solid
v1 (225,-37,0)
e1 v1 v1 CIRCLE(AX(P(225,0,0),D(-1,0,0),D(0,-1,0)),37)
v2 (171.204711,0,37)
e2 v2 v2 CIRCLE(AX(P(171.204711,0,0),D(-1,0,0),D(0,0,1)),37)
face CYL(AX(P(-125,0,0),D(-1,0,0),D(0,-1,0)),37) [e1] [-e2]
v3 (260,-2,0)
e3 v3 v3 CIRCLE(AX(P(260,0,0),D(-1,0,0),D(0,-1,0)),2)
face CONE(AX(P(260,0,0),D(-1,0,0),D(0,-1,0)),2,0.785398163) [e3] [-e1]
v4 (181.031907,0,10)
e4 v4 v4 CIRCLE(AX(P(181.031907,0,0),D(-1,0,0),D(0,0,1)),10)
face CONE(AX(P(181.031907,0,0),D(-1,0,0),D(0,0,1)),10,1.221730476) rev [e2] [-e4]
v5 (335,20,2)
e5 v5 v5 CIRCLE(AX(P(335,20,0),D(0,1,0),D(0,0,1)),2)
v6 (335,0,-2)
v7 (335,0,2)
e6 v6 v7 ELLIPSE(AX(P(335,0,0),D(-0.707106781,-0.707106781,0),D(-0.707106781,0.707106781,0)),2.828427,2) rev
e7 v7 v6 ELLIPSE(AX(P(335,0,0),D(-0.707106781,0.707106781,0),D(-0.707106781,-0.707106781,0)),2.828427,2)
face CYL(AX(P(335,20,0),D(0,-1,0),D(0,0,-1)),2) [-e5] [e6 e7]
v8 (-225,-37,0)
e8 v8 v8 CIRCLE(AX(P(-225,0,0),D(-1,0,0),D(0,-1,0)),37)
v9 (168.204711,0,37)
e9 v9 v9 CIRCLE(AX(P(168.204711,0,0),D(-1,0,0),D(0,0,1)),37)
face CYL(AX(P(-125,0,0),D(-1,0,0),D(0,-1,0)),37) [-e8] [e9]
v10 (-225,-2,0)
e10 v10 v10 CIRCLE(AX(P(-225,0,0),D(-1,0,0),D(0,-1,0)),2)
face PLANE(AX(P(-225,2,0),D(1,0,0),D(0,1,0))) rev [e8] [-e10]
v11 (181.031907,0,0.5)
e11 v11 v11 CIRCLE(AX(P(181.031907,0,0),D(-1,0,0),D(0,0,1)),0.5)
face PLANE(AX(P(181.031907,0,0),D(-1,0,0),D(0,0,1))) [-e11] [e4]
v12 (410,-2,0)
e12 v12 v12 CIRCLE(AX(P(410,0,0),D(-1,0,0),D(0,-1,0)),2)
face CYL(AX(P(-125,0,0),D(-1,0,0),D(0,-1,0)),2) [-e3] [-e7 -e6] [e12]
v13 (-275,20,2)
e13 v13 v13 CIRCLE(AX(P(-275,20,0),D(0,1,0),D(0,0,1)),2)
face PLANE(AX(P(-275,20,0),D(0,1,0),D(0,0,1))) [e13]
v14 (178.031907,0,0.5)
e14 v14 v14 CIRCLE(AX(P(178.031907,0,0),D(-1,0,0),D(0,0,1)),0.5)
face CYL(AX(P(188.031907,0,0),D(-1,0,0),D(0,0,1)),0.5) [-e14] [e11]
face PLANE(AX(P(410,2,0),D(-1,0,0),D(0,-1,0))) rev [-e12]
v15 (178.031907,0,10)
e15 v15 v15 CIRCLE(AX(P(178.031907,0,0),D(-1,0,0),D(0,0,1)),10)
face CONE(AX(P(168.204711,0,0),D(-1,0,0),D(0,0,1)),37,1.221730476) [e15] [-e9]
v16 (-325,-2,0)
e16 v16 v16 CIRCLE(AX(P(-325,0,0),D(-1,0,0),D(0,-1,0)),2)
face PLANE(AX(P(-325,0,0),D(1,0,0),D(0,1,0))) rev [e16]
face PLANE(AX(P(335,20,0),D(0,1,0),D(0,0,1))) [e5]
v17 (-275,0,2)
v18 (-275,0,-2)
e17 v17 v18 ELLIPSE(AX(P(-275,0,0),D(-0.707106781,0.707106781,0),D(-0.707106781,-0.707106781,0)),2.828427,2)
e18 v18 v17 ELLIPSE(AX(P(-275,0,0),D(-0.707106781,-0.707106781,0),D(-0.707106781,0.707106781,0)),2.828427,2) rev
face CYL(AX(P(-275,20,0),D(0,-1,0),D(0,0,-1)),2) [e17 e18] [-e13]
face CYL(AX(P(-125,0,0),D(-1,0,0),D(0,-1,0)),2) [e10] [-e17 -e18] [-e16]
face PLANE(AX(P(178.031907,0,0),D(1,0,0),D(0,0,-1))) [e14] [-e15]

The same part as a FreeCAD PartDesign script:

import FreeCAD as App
import Part
import Sketcher

V = App.Vector
Q = App.Units.Quantity

doc = App.newDocument("Part")
body = doc.addObject("PartDesign::Body", "Body")

sketch1 = body.newObject("Sketcher::SketchObject", "Sketch")
sketch1.AttachmentSupport = (doc.getObject("XY_Plane"), [""])
sketch1.MapMode = "FlatFace"
sketch1.addGeometry([
    Part.LineSegment(V(-225, 37, 0), V(-225, 2, 0)),
    Part.LineSegment(V(-225, 2, 0), V(-325, 2, 0)),
    Part.LineSegment(V(-325, 2, 0), V(-325, 0, 0)),
    Part.LineSegment(V(-325, 0, 0), V(410, 0, 0)),
    Part.LineSegment(V(410, 0, 0), V(410, 2, 0)),
    Part.LineSegment(V(410, 2, 0), V(260, 2, 0)),
    Part.LineSegment(V(260, 2, 0), V(225, 37, 0)),
    Part.LineSegment(V(225, 37, 0), V(-225, 37, 0)),
], False)
sketch1.addConstraint([
    Sketcher.Constraint("Coincident", 0, 2, 1, 1),
    Sketcher.Constraint("Coincident", 1, 2, 2, 1),
    Sketcher.Constraint("Coincident", 2, 2, 3, 1),
    Sketcher.Constraint("Coincident", 3, 2, 4, 1),
    Sketcher.Constraint("Coincident", 4, 2, 5, 1),
    Sketcher.Constraint("Coincident", 5, 2, 6, 1),
    Sketcher.Constraint("Coincident", 6, 2, 7, 1),
    Sketcher.Constraint("Coincident", 7, 2, 0, 1),
    Sketcher.Constraint("Vertical", 0),
    Sketcher.Constraint("Horizontal", 1),
    Sketcher.Constraint("Vertical", 2),
    Sketcher.Constraint("Horizontal", 3),
    Sketcher.Constraint("Vertical", 4),
    Sketcher.Constraint("Horizontal", 5),
    Sketcher.Constraint("Horizontal", 7),
    Sketcher.Constraint("PointOnObject", 2, 2, -1),
    Sketcher.Constraint("Horizontal", 1, 2, 4, 2),
    Sketcher.Constraint("DistanceX", 1, 2, 1, 1, Q("100 mm")),
    Sketcher.Constraint("DistanceX", 3, 1, 3, 2, Q("735 mm")),
    Sketcher.Constraint("DistanceX", 5, 2, 5, 1, Q("150 mm")),
    Sketcher.Constraint("DistanceX", 7, 2, 7, 1, Q("450 mm")),
    Sketcher.Constraint("DistanceY", 0, 2, 0, 1, Q("35 mm")),
    Sketcher.Constraint("DistanceY", 2, 2, 2, 1, Q("2 mm")),
    Sketcher.Constraint("DistanceX", 0, 2, -1, 1, Q("225 mm")),
])
revolution = body.newObject("PartDesign::Revolution", "Revolution")
revolution.Profile = sketch1
revolution.ReferenceAxis = (sketch1, ["H_Axis"])
revolution.Angle = 360

sketch2 = body.newObject("Sketcher::SketchObject", "Sketch001")
sketch2.AttachmentSupport = (doc.getObject("XZ_Plane"), [""])
sketch2.MapMode = "FlatFace"
sketch2.addGeometry([
    Part.Circle(V(-275, 0, 0), V(0, 0, 1), 2),
    Part.Circle(V(335, 0, 0), V(0, 0, 1), 2),
], False)
sketch2.addConstraint([
    Sketcher.Constraint("Equal", 0, 1),
    Sketcher.Constraint("PointOnObject", 0, 3, -1),
    Sketcher.Constraint("PointOnObject", 1, 3, -1),
    Sketcher.Constraint("Diameter", 0, Q("4 mm")),
    Sketcher.Constraint("DistanceX", 0, 3, -1, 1, Q("275 mm")),
    Sketcher.Constraint("DistanceX", -1, 1, 1, 3, Q("335 mm")),
])
pad1 = body.newObject("PartDesign::Pad", "Pad")
pad1.Profile = sketch2
pad1.Length = 20
pad1.Reversed = True
body2 = doc.addObject("PartDesign::Body", "Body001")

sketch3 = body2.newObject("Sketcher::SketchObject", "Sketch002")
sketch3.AttachmentSupport = (doc.getObject("XZ_Plane001"), [""])
sketch3.MapMode = "FlatFace"
sketch3.addGeometry([
    Part.LineSegment(V(181, 0, 0), V(181, -10, 0)),
    Part.LineSegment(V(181, -10, 0), V(171.2, -37, 0)),
    Part.LineSegment(V(171.2, -37, 0), V(168.2, -37, 0)),
    Part.LineSegment(V(168.2, -37, 0), V(178, -10, 0)),
    Part.LineSegment(V(178, -10, 0), V(178, 0, 0)),
    Part.LineSegment(V(178, 0, 0), V(181, 0, 0)),
], False)
sketch3.addConstraint([
    Sketcher.Constraint("Coincident", 0, 2, 1, 1),
    Sketcher.Constraint("Coincident", 1, 2, 2, 1),
    Sketcher.Constraint("Coincident", 2, 2, 3, 1),
    Sketcher.Constraint("Coincident", 3, 2, 4, 1),
    Sketcher.Constraint("Coincident", 4, 2, 5, 1),
    Sketcher.Constraint("Coincident", 5, 2, 0, 1),
    Sketcher.Constraint("Vertical", 0),
    Sketcher.Constraint("Horizontal", 2),
    Sketcher.Constraint("Vertical", 4),
    Sketcher.Constraint("Horizontal", 5),
    Sketcher.Constraint("PointOnObject", 4, 2, -1),
    Sketcher.Constraint("Parallel", 1, 3),
    Sketcher.Constraint("Horizontal", 0, 2, 3, 2),
    Sketcher.Constraint("DistanceX", 2, 2, 2, 1, Q("3 mm")),
    Sketcher.Constraint("DistanceY", 0, 2, 0, 1, Q("10 mm")),
    Sketcher.Constraint("Angle", 1, Q("-110 deg")),
    Sketcher.Constraint("DistanceY", 1, 2, -1, 1, Q("37 mm")),
    Sketcher.Constraint("DistanceX", -1, 1, 1, 2, Q("171.204711 mm")),
])
revolution2 = body2.newObject("PartDesign::Revolution", "Revolution001")
revolution2.Profile = sketch3
revolution2.ReferenceAxis = (sketch3, ["H_Axis"])
revolution2.Angle = 360

sketch4 = body2.newObject("Sketcher::SketchObject", "Sketch003")
sketch4.AttachmentSupport = (doc.getObject("YZ_Plane001"), [""])
sketch4.MapMode = "FlatFace"
sketch4.AttachmentOffset = App.Placement(V(0, 0, 178.031907), App.Rotation())
sketch4.addGeometry(Part.Circle(V(0, 0, 0), V(0, 0, 1), 0.5), False)
sketch4.addConstraint([
    Sketcher.Constraint("Coincident", 0, 3, -1, 1),
    Sketcher.Constraint("Diameter", 0, Q("1 mm")),
])
pocket1 = body2.newObject("PartDesign::Pocket", "Pocket")
pocket1.Profile = sketch4
pocket1.Length = 10
pocket1.Reversed = True
doc.recompute()

boolean = body.newObject("PartDesign::Boolean", "Boolean")
boolean.Type = "Cut"
boolean.addObjects([body2])

doc.recompute()
